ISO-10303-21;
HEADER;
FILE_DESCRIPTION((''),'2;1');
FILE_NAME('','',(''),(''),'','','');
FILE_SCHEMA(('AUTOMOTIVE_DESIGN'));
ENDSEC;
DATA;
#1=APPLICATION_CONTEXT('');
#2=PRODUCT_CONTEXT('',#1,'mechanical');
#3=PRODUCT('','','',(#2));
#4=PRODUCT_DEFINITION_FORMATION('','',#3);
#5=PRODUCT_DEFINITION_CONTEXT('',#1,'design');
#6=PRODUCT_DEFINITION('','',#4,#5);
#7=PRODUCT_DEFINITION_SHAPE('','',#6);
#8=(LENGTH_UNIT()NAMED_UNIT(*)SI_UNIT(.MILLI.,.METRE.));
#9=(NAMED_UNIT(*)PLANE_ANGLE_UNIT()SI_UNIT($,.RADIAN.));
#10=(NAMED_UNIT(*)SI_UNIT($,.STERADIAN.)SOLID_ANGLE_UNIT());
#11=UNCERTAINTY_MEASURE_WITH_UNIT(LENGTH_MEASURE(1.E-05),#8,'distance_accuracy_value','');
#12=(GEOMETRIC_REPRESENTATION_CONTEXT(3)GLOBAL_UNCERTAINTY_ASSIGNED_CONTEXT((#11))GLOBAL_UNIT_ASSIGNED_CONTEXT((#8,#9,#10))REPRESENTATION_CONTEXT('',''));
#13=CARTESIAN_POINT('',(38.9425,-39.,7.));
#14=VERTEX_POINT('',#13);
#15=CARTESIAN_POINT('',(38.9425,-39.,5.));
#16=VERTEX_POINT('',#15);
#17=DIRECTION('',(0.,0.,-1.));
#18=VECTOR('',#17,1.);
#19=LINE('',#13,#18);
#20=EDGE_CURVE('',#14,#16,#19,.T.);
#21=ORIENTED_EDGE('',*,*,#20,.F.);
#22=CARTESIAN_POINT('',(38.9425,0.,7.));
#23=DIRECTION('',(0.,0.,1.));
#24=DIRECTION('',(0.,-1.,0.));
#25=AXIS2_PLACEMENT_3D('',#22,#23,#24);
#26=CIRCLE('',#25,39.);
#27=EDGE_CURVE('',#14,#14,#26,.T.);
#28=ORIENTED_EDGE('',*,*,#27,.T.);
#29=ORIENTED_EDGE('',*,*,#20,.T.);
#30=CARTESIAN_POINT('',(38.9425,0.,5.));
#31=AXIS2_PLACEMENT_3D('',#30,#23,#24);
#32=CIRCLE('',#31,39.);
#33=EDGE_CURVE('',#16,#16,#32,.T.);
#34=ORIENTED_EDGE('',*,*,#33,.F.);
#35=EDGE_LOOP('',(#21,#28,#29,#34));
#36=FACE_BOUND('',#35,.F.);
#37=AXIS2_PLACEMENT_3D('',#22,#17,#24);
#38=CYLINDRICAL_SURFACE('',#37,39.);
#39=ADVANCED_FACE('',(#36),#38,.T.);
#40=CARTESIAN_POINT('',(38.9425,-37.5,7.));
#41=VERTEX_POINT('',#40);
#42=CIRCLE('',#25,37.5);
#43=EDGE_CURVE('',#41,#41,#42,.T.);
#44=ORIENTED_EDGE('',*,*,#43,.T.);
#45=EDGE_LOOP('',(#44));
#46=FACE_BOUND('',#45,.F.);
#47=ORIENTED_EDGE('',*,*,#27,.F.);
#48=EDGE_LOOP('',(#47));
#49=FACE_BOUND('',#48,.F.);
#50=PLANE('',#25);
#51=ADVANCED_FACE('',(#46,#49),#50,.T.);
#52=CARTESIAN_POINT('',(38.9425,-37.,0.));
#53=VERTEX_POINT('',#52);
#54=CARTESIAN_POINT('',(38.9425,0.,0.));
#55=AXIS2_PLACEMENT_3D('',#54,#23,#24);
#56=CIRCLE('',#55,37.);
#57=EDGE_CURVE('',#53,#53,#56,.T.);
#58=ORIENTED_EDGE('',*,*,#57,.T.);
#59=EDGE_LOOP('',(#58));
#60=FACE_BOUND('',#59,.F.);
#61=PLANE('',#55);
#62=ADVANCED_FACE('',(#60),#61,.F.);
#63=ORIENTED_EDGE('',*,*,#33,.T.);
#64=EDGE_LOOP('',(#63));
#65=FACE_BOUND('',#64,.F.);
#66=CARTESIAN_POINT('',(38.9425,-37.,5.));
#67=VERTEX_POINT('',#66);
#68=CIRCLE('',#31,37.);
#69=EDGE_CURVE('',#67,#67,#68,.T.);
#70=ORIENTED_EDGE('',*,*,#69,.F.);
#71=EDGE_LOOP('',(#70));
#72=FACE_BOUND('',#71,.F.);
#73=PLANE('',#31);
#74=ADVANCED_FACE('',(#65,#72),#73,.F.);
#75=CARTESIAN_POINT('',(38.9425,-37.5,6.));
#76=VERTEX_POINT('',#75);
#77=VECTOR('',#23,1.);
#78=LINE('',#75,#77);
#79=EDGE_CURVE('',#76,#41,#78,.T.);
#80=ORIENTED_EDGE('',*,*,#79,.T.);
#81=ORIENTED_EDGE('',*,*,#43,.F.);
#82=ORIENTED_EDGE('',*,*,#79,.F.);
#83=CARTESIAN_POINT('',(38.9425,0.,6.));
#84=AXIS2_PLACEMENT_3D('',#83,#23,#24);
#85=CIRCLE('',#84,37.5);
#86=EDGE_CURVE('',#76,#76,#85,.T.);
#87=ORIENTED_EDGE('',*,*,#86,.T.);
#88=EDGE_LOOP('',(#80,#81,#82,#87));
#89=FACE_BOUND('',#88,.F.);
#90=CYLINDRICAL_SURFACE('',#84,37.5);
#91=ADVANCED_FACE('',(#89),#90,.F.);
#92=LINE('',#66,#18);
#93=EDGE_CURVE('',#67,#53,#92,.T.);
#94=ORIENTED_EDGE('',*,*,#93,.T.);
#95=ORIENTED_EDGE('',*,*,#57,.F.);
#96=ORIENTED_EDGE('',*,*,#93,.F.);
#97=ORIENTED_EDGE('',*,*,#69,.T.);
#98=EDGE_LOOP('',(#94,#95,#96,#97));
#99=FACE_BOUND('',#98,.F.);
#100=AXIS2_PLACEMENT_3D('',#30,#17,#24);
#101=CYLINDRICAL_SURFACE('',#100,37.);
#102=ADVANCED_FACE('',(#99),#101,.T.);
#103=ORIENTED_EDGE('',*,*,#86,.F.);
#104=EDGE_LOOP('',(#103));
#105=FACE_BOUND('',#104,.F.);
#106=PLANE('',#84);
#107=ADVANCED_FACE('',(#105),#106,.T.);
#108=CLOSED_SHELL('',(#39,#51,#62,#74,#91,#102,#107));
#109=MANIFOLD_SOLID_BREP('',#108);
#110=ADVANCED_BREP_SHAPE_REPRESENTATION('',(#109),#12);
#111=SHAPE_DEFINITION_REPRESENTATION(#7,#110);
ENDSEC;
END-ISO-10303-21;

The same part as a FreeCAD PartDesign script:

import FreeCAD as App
import Part
import Sketcher
from FreeCAD import Vector


def add_polygon(sketch, points):
    """Adds a closed chain of lines whose ends are joined by coincident constraints."""
    first, n = sketch.GeometryCount, len(points)
    for a, b in zip(points, points[1:] + points[:1]):
        sketch.addGeometry(Part.LineSegment(App.Vector(*a, 0), App.Vector(*b, 0)), False)
    for i in range(n):
        sketch.addConstraint(Sketcher.Constraint("Coincident", first + i, 2, first + (i + 1) % n, 1))

doc = App.newDocument("Part")
params = doc.addObject("Spreadsheet::Sheet", "Params")
for row, (alias, value) in enumerate([
    ("sketch1_height", "6 mm"),
    ("sketch1_height2", "5 mm"),
    ("sketch1_width", "37 mm"),
    ("sketch1_width2", "37.5 mm"),
    ("revolution_angle", "360 deg"),
], start=1):
    params.set(f"A{row}", alias)
    params.set(f"B{row}", "=" + value)
    params.setAlias(f"B{row}", alias)

body = doc.addObject("PartDesign::Body", "Body")

# Sketch on YZ plane
sketch1 = body.newObject("Sketcher::SketchObject", "Sketch")
sketch1.AttachmentSupport = (doc.getObject("YZ_Plane"), [""])
sketch1.MapMode = "FlatFace"
sketch1.AttachmentOffset = App.Placement(Vector(0, 0, 38.9425), App.Rotation())
add_polygon(sketch1, [(-37, 0), (0, 0), (0, 6), (-37.5, 6), (-37.5, 7), (-39, 7), (-39, 5), (-37, 5)])  # lines 0-7
sketch1.addConstraint([
    Sketcher.Constraint("Horizontal", 0),
    Sketcher.Constraint("Vertical", 1),
    Sketcher.Constraint("Horizontal", 2),
    Sketcher.Constraint("Vertical", 3),
    Sketcher.Constraint("Horizontal", 4),
    Sketcher.Constraint("Vertical", 5),
    Sketcher.Constraint("Horizontal", 6),
    Sketcher.Constraint("Vertical", 7),
    Sketcher.Constraint("Coincident", 0, 2, -1, 1),
    Sketcher.Constraint("Equal", 6, 5),
    Sketcher.Constraint("DistanceY", 1, 1, 1, 2, 6.0),
    Sketcher.Constraint("DistanceY", 7, 2, 7, 1, 5.0),
    Sketcher.Constraint("DistanceY", -1, 1, 3, 2, 7.0),
    Sketcher.Constraint("DistanceX", 0, 1, 0, 2, 37.0),
    Sketcher.Constraint("DistanceX", 2, 2, 2, 1, 37.5),
])
sketch1.setExpression("Constraints[18]", "Params.sketch1_height")
sketch1.setExpression("Constraints[19]", "Params.sketch1_height2")
sketch1.setExpression("Constraints[21]", "Params.sketch1_width")
sketch1.setExpression("Constraints[22]", "Params.sketch1_width2")
revolution = body.newObject("PartDesign::Revolution", "Revolution")
revolution.Profile = sketch1
revolution.ReferenceAxis = (sketch1, ["V_Axis"])
revolution.setExpression("Angle", "Params.revolution_angle")

doc.recompute()
